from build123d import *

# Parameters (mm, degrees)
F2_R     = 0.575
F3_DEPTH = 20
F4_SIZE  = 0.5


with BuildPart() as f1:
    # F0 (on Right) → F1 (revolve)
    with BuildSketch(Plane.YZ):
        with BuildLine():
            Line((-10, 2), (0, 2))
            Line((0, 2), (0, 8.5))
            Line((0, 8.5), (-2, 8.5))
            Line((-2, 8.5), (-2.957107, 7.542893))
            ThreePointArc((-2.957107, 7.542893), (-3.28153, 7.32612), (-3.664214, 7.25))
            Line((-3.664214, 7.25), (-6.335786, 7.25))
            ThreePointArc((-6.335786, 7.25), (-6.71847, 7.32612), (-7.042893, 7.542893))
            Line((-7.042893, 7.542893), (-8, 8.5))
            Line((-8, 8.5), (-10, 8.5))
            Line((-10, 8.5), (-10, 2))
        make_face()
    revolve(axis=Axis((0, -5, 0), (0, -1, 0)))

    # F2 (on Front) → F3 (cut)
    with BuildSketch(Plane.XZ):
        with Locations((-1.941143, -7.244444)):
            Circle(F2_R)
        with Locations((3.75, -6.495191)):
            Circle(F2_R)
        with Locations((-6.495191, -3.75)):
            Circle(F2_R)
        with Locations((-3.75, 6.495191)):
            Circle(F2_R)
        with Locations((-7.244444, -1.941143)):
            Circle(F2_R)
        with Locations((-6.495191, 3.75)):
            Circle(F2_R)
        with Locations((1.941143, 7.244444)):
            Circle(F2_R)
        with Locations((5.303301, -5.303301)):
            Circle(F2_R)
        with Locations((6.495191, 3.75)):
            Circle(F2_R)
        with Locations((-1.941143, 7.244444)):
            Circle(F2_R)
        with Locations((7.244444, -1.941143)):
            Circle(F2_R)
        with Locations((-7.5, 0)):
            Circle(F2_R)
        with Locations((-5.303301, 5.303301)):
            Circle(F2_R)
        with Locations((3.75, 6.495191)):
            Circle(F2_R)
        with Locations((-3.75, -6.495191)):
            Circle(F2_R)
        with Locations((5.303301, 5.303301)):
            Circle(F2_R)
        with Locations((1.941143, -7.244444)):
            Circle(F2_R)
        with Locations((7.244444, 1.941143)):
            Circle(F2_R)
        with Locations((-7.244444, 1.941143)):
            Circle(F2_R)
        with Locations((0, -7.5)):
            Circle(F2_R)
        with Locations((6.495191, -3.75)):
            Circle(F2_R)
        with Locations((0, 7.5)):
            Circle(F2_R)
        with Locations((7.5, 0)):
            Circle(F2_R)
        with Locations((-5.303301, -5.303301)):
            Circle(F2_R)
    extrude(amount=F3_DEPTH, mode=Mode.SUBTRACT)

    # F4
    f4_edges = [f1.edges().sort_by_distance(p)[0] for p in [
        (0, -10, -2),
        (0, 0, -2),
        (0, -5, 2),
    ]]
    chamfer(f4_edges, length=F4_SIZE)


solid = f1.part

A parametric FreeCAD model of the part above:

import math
import FreeCAD as App
import Part
import Sketcher

V = App.Vector


def edges_at(feature, points):
    """Names of the edges that pass closest to the given points."""
    edges = feature.Shape.Edges
    near = lambda p: min(range(len(edges)), key=lambda i: edges[i].distToShape(Part.Vertex(*p))[0])
    return sorted({f"Edge{near(p) + 1}" for p in points})

doc = App.newDocument("Part")
body = doc.addObject("PartDesign::Body", "Body")

# Sketch on YZ plane
sketch1 = body.newObject("Sketcher::SketchObject", "Sketch")
sketch1.AttachmentSupport = (doc.getObject("YZ_Plane"), [""])
sketch1.MapMode = "FlatFace"
sketch1.addGeometry(Part.LineSegment(V(-10, 2, 0), V(0, 2, 0)), False)
sketch1.addGeometry(Part.LineSegment(V(0, 2, 0), V(0, 8.5, 0)), False)
sketch1.addGeometry(Part.LineSegment(V(0, 8.5, 0), V(-2, 8.5, 0)), False)
sketch1.addGeometry(Part.LineSegment(V(-2, 8.5, 0), V(-3, 7.5, 0)), False)
sketch1.addGeometry(Part.ArcOfCircle(Part.Circle(V(-3.7, 8.2, 0), V(0, 0, 1), 1), math.radians(-90), math.radians(-45)), False)
sketch1.addGeometry(Part.LineSegment(V(-3.7, 7.2, 0), V(-6.3, 7.2, 0)), False)
sketch1.addGeometry(Part.ArcOfCircle(Part.Circle(V(-6.3, 8.2, 0), V(0, 0, 1), 1), math.radians(-135), math.radians(-90)), False)
sketch1.addGeometry(Part.LineSegment(V(-7, 7.5, 0), V(-8, 8.5, 0)), False)
sketch1.addGeometry(Part.LineSegment(V(-8, 8.5, 0), V(-10, 8.5, 0)), False)
sketch1.addGeometry(Part.LineSegment(V(-10, 8.5, 0), V(-10, 2, 0)), False)
sketch1.addConstraint(Sketcher.Constraint("Coincident", 0, 2, 1, 1))
sketch1.addConstraint(Sketcher.Constraint("Coincident", 1, 2, 2, 1))
sketch1.addConstraint(Sketcher.Constraint("Coincident", 2, 2, 3, 1))
sketch1.addConstraint(Sketcher.Constraint("Coincident", 3, 2, 4, 2))
sketch1.addConstraint(Sketcher.Constraint("Coincident", 4, 1, 5, 1))
sketch1.addConstraint(Sketcher.Constraint("Coincident", 5, 2, 6, 2))
sketch1.addConstraint(Sketcher.Constraint("Coincident", 6, 1, 7, 1))
sketch1.addConstraint(Sketcher.Constraint("Coincident", 7, 2, 8, 1))
sketch1.addConstraint(Sketcher.Constraint("Coincident", 8, 2, 9, 1))
sketch1.addConstraint(Sketcher.Constraint("Coincident", 9, 2, 0, 1))
sketch1.addConstraint(Sketcher.Constraint("Horizontal", 0))
sketch1.addConstraint(Sketcher.Constraint("Vertical", 1))
sketch1.addConstraint(Sketcher.Constraint("Horizontal", 2))
sketch1.addConstraint(Sketcher.Constraint("Horizontal", 5))
sketch1.addConstraint(Sketcher.Constraint("Horizontal", 8))
sketch1.addConstraint(Sketcher.Constraint("Vertical", 9))
sketch1.addConstraint(Sketcher.Constraint("Equal", 4, 6))
sketch1.addConstraint(Sketcher.Constraint("PointOnObject", 0, 2, -2))
sketch1.addConstraint(Sketcher.Constraint("Perpendicular", 3, 7))
sketch1.addConstraint(Sketcher.Constraint("Horizontal", 3, 2, 6, 1))
sketch1.addConstraint(Sketcher.Constraint("Horizontal", 2, 2, 7, 2))
sketch1.addConstraint(Sketcher.Constraint("Equal", 2, 8))
sketch1.addConstraint(Sketcher.Constraint("Equal", 3, 7))
sketch1.addConstraint(Sketcher.Constraint("DistanceX", 0, 1, 0, 2, 10.0))
sketch1.addConstraint(Sketcher.Constraint("DistanceX", 2, 2, 2, 1, 2.0))
sketch1.addConstraint(Sketcher.Constraint("DistanceY", 1, 1, 1, 2, 6.5))
sketch1.addConstraint(Sketcher.Constraint("DistanceY", -1, 1, 0, 2, 2.0))
sketch1.addConstraint(Sketcher.Constraint("DistanceY", -1, 1, 4, 1, 7.25))
sketch1.addConstraint(Sketcher.Constraint("Radius", 4, 0.999994))
sketch1.addConstraint(Sketcher.Constraint("DistanceX", 5, 2, 5, 1, 2.671572))
sketch1.addConstraint(Sketcher.Constraint("DistanceY", 3, 2, 4, 3, 0.707101))
sketch1.addConstraint(Sketcher.Constraint("DistanceX", 5, 2, 3, 2, 3.378679))
revolution = body.newObject("PartDesign::Revolution", "Revolution")
revolution.Profile = sketch1
revolution.ReferenceAxis = (sketch1, ["H_Axis"])
revolution.Angle = 360

# Sketch on XZ plane
sketch2 = body.newObject("Sketcher::SketchObject", "Sketch001")
sketch2.AttachmentSupport = (doc.getObject("XZ_Plane"), [""])
sketch2.MapMode = "FlatFace"
sketch2.addGeometry(Part.Circle(V(-1.9, -7.2, 0), V(0, 0, 1), 0.6), False)
sketch2.addGeometry(Part.Circle(V(3.8, -6.5, 0), V(0, 0, 1), 0.6), False)
sketch2.addGeometry(Part.Circle(V(-6.5, -3.8, 0), V(0, 0, 1), 0.6), False)
sketch2.addGeometry(Part.Circle(V(-3.8, 6.5, 0), V(0, 0, 1), 0.6), False)
sketch2.addGeometry(Part.Circle(V(-7.2, -1.9, 0), V(0, 0, 1), 0.6), False)
sketch2.addGeometry(Part.Circle(V(-6.5, 3.8, 0), V(0, 0, 1), 0.6), False)
sketch2.addGeometry(Part.Circle(V(1.9, 7.2, 0), V(0, 0, 1), 0.6), False)
sketch2.addGeometry(Part.Circle(V(5.3, -5.3, 0), V(0, 0, 1), 0.6), False)
sketch2.addGeometry(Part.Circle(V(6.5, 3.8, 0), V(0, 0, 1), 0.6), False)
sketch2.addGeometry(Part.Circle(V(-1.9, 7.2, 0), V(0, 0, 1), 0.6), False)
sketch2.addGeometry(Part.Circle(V(7.2, -1.9, 0), V(0, 0, 1), 0.6), False)
sketch2.addGeometry(Part.Circle(V(-7.5, 0, 0), V(0, 0, 1), 0.6), False)
sketch2.addGeometry(Part.Circle(V(-5.3, 5.3, 0), V(0, 0, 1), 0.6), False)
sketch2.addGeometry(Part.Circle(V(3.8, 6.5, 0), V(0, 0, 1), 0.6), False)
sketch2.addGeometry(Part.Circle(V(-3.8, -6.5, 0), V(0, 0, 1), 0.6), False)
sketch2.addGeometry(Part.Circle(V(5.3, 5.3, 0), V(0, 0, 1), 0.6), False)
sketch2.addGeometry(Part.Circle(V(1.9, -7.2, 0), V(0, 0, 1), 0.6), False)
sketch2.addGeometry(Part.Circle(V(7.2, 1.9, 0), V(0, 0, 1), 0.6), False)
sketch2.addGeometry(Part.Circle(V(-7.2, 1.9, 0), V(0, 0, 1), 0.6), False)
sketch2.addGeometry(Part.Circle(V(0, -7.5, 0), V(0, 0, 1), 0.6), False)
sketch2.addGeometry(Part.Circle(V(6.5, -3.8, 0), V(0, 0, 1), 0.6), False)
sketch2.addGeometry(Part.Circle(V(0, 7.5, 0), V(0, 0, 1), 0.6), False)
sketch2.addGeometry(Part.Circle(V(7.5, 0, 0), V(0, 0, 1), 0.6), False)
sketch2.addGeometry(Part.Circle(V(-5.3, -5.3, 0), V(0, 0, 1), 0.6), False)
sketch2.addConstraint(Sketcher.Constraint("Equal", 0, 1))
sketch2.addConstraint(Sketcher.Constraint("Equal", 1, 2))
sketch2.addConstraint(Sketcher.Constraint("Equal", 2, 3))
sketch2.addConstraint(Sketcher.Constraint("Equal", 3, 4))
sketch2.addConstraint(Sketcher.Constraint("Equal", 4, 5))
sketch2.addConstraint(Sketcher.Constraint("Equal", 5, 6))
sketch2.addConstraint(Sketcher.Constraint("Equal", 6, 7))
sketch2.addConstraint(Sketcher.Constraint("Equal", 7, 8))
sketch2.addConstraint(Sketcher.Constraint("Equal", 8, 9))
sketch2.addConstraint(Sketcher.Constraint("Equal", 9, 10))
sketch2.addConstraint(Sketcher.Constraint("Equal", 10, 11))
sketch2.addConstraint(Sketcher.Constraint("Equal", 11, 12))
sketch2.addConstraint(Sketcher.Constraint("Equal", 12, 13))
sketch2.addConstraint(Sketcher.Constraint("Equal", 13, 14))
sketch2.addConstraint(Sketcher.Constraint("Equal", 14, 15))
sketch2.addConstraint(Sketcher.Constraint("Equal", 15, 16))
sketch2.addConstraint(Sketcher.Constraint("Equal", 16, 17))
sketch2.addConstraint(Sketcher.Constraint("Equal", 17, 18))
sketch2.addConstraint(Sketcher.Constraint("Equal", 18, 19))
sketch2.addConstraint(Sketcher.Constraint("Equal", 19, 20))
sketch2.addConstraint(Sketcher.Constraint("Equal", 20, 21))
sketch2.addConstraint(Sketcher.Constraint("Equal", 21, 22))
sketch2.addConstraint(Sketcher.Constraint("Equal", 22, 23))
sketch2.addConstraint(Sketcher.Constraint("Symmetric", 1, 3, 3, 3, -1, 1))
sketch2.addConstraint(Sketcher.Constraint("Symmetric", 0, 3, 6, 3, -1, 1))
sketch2.addConstraint(Sketcher.Constraint("Symmetric", 2, 3, 8, 3, -1, 1))
sketch2.addConstraint(Sketcher.Constraint("Symmetric", 7, 3, 12, 3, -1, 1))
sketch2.addConstraint(Sketcher.Constraint("Symmetric", 13, 3, 14, 3, -1, 1))
sketch2.addConstraint(Sketcher.Constraint("Symmetric", 9, 3, 16, 3, -1, 1))
sketch2.addConstraint(Sketcher.Constraint("Symmetric", 4, 3, 17, 3, -1, 1))
sketch2.addConstraint(Sketcher.Constraint("Symmetric", 10, 3, 18, 3, -1, 1))
sketch2.addConstraint(Sketcher.Constraint("Symmetric", 5, 3, 20, 3, -1, 1))
sketch2.addConstraint(Sketcher.Constraint("Symmetric", 19, 3, 21, 3, -1, 1))
sketch2.addConstraint(Sketcher.Constraint("Symmetric", 11, 3, 22, 3, -1, 1))
sketch2.addConstraint(Sketcher.Constraint("Symmetric", 15, 3, 23, 3, -1, 1))
sketch2.addConstraint(Sketcher.Constraint("Symmetric", 5, 3, 8, 3, -2))
sketch2.addConstraint(Sketcher.Constraint("Symmetric", 6, 3, 9, 3, -2))
sketch2.addConstraint(Sketcher.Constraint("Symmetric", 4, 3, 10, 3, -2))
sketch2.addConstraint(Sketcher.Constraint("Symmetric", 3, 3, 13, 3, -2))
sketch2.addConstraint(Sketcher.Constraint("Symmetric", 12, 3, 15, 3, -2))
sketch2.addConstraint(Sketcher.Constraint("PointOnObject", 11, 3, -1))
sketch2.addConstraint(Sketcher.Constraint("PointOnObject", 19, 3, -2))
sketch2.addConstraint(Sketcher.Constraint("Diameter", 0, 1.15))
sketch2.addConstraint(Sketcher.Constraint("DistanceX", 11, 3, -1, 1, 7.5))
sketch2.addConstraint(Sketcher.Constraint("DistanceY", 19, 3, -1, 1, 7.5))
sketch2.addConstraint(Sketcher.Constraint("DistanceX", 3, 3, 1, 3, 7.5))
sketch2.addConstraint(Sketcher.Constraint("DistanceY", 2, 3, 5, 3, 7.5))
sketch2.addConstraint(Sketcher.Constraint("DistanceX", -1, 1, 7, 3, 5.303301))
sketch2.addConstraint(Sketcher.Constraint("DistanceY", 7, 3, -1, 1, 5.303301))
sketch2.addConstraint(Sketcher.Constraint("DistanceX", 4, 3, 0, 3, 5.303301))
sketch2.addConstraint(Sketcher.Constraint("DistanceY", 0, 3, 4, 3, 5.303301))
sketch2.addConstraint(Sketcher.Constraint("DistanceY", 1, 3, -1, 1, 6.495191))
sketch2.addConstraint(Sketcher.Constraint("DistanceX", 2, 3, -1, 1, 6.495191))
sketch2.addConstraint(Sketcher.Constraint("DistanceY", 7, 3, 4, 3, 3.362158))
sketch2.addConstraint(Sketcher.Constraint("DistanceX", 6, 3, 7, 3, 3.362158))
pocket1 = body.newObject("PartDesign::Pocket", "Pocket")
pocket1.Profile = sketch2
pocket1.Length = 20
pocket1.Reversed = True
doc.recompute()

chamfer = body.newObject("PartDesign::Chamfer", "Chamfer")
chamfer.Base = (pocket1, edges_at(pocket1, [(0, -10, -2), (0, 0, -2), (0, -5, 2)]))
chamfer.Size = 0.5

doc.recompute()
